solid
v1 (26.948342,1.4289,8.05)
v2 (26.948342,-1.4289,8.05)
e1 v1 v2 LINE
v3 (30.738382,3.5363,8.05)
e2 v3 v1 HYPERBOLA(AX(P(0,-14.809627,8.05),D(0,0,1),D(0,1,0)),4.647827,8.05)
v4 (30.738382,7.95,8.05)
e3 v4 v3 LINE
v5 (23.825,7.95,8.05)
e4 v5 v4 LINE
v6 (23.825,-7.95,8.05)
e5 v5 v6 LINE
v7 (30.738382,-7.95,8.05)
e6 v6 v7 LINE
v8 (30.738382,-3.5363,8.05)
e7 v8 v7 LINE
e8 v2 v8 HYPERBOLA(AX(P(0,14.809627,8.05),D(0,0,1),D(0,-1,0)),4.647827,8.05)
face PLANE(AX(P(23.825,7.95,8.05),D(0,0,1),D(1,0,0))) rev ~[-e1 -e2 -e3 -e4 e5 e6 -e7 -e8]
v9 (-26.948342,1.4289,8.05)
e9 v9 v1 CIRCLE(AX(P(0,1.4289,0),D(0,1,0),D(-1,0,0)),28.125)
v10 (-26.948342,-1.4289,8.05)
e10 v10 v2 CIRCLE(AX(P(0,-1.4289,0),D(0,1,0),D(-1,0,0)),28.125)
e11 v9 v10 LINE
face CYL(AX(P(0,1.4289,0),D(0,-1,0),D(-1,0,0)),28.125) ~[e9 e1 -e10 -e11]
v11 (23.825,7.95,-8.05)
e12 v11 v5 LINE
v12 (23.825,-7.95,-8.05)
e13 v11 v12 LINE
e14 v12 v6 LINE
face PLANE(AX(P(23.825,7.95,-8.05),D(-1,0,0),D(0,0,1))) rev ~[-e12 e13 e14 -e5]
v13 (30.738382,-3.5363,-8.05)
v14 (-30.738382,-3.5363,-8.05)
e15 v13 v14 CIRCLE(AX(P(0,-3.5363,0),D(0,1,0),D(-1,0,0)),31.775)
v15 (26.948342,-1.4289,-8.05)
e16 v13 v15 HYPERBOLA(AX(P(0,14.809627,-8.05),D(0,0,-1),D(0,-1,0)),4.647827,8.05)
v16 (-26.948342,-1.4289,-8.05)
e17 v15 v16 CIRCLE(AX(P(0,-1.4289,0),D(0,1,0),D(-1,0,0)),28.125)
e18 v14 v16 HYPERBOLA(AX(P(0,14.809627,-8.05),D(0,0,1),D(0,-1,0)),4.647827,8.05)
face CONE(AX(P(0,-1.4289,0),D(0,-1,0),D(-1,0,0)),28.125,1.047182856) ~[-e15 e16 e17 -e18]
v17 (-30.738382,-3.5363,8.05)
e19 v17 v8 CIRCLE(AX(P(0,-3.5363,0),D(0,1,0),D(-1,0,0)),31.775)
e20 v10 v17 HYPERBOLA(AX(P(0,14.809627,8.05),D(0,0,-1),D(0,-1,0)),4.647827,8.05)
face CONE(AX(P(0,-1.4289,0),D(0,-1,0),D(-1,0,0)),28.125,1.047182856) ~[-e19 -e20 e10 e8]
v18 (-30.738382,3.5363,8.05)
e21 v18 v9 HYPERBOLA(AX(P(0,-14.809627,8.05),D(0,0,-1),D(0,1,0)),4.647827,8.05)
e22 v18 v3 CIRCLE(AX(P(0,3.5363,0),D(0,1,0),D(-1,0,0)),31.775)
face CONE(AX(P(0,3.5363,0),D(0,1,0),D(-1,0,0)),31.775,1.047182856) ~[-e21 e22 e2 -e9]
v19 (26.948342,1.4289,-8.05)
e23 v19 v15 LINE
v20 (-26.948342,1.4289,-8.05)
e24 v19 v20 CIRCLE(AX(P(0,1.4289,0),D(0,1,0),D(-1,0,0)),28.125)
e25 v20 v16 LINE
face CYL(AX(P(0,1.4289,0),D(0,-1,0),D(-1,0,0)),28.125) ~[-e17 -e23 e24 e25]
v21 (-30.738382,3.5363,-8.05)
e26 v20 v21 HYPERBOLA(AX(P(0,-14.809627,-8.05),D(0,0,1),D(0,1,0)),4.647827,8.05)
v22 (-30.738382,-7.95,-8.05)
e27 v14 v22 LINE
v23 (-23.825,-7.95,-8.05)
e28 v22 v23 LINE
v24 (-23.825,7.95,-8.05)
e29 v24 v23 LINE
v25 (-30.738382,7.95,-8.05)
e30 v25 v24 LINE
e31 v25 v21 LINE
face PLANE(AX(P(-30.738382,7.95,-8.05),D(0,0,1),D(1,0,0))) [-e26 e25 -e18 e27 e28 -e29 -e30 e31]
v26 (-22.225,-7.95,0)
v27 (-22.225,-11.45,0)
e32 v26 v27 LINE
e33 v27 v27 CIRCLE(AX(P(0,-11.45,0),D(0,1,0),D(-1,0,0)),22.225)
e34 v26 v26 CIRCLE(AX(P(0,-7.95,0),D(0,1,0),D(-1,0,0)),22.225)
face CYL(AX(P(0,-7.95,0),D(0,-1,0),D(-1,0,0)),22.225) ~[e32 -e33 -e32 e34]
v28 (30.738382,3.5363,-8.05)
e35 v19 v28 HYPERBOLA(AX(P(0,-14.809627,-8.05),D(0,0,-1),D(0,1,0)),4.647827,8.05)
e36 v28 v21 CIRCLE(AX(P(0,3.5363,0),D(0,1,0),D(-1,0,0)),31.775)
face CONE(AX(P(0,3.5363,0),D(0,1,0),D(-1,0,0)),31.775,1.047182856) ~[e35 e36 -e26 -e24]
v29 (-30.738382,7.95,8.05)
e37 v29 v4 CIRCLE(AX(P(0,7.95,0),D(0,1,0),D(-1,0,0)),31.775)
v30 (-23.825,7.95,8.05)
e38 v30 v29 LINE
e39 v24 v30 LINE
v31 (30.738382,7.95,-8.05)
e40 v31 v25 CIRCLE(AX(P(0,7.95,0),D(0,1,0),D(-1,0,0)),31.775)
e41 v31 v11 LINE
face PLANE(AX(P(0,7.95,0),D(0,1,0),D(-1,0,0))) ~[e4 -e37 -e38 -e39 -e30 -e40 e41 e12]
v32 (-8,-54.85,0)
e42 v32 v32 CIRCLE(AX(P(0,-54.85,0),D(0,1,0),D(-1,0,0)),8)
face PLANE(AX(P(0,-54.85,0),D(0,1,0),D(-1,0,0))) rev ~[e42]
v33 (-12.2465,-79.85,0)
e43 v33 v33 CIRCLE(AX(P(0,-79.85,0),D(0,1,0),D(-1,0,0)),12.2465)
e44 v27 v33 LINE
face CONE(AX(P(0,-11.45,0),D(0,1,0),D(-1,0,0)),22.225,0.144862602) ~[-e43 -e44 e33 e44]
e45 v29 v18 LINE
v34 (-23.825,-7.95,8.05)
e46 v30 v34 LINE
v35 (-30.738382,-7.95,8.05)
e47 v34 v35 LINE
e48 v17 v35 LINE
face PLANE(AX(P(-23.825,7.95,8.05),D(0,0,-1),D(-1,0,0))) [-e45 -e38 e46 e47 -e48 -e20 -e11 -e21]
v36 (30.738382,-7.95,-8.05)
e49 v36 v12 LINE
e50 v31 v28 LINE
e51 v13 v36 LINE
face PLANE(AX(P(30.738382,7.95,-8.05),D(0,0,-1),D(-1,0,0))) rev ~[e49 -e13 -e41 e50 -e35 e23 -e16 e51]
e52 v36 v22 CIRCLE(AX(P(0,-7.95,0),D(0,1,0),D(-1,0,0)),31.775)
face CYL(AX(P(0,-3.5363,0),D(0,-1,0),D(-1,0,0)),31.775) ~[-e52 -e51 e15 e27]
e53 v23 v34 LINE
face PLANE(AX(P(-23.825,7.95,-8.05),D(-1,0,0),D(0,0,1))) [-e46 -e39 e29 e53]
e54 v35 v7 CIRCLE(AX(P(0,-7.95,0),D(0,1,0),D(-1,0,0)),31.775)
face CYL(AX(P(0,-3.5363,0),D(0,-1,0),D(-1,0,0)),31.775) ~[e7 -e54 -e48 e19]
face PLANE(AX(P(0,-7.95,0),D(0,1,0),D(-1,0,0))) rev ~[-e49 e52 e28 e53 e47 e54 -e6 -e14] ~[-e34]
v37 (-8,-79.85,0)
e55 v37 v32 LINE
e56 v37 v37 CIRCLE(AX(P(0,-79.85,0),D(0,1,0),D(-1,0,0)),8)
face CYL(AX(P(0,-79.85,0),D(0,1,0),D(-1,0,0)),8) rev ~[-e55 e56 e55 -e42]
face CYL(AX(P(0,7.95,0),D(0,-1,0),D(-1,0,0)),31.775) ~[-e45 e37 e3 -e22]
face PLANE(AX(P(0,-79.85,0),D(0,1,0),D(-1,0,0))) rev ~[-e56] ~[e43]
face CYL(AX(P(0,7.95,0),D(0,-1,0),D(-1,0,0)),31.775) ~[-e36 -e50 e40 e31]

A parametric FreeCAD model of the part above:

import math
import FreeCAD as App
import Part
import Sketcher

V = App.Vector
Q = App.Units.Quantity


def add_polygon(sketch, points):
    """Adds a closed chain of lines whose ends are joined by coincident constraints."""
    first, n = sketch.GeometryCount, len(points)
    for a, b in zip(points, points[1:] + points[:1]):
        sketch.addGeometry(Part.LineSegment(App.Vector(*a, 0), App.Vector(*b, 0)), False)
    for i in range(n):
        sketch.addConstraint(Sketcher.Constraint("Coincident", first + i, 2, first + (i + 1) % n, 1))

doc = App.newDocument("Part")
body = doc.addObject("PartDesign::Body", "Body")

sketch1 = body.newObject("Sketcher::SketchObject", "Sketch")
sketch1.AttachmentSupport = (doc.getObject("XY_Plane"), [""])
sketch1.MapMode = "FlatFace"
add_polygon(sketch1, [(-8, -54.85), (0, -54.85), (0, 7.95), (-31.775, 7.95), (-31.775, 3.5363), (-28.125, 1.4289), (-28.125, -1.4289), (-31.775, -3.5363), (-31.775, -7.95), (-22.225, -7.95), (-22.225, -11.45), (-12.2465, -79.85), (-8, -79.85)])
sketch1.addConstraint([
    Sketcher.Constraint("Horizontal", 0),
    Sketcher.Constraint("Vertical", 1),
    Sketcher.Constraint("Horizontal", 2),
    Sketcher.Constraint("Vertical", 3),
    Sketcher.Constraint("Vertical", 5),
    Sketcher.Constraint("Vertical", 7),
    Sketcher.Constraint("Horizontal", 8),
    Sketcher.Constraint("Vertical", 9),
    Sketcher.Constraint("Horizontal", 11),
    Sketcher.Constraint("Vertical", 12),
    Sketcher.Constraint("Symmetric", 3, 2, 6, 2, -1),
    Sketcher.Constraint("PointOnObject", 0, 2, -2),
    Sketcher.Constraint("Equal", 3, 7),
    Sketcher.Constraint("Equal", 4, 6),
    Sketcher.Constraint("DistanceY", 12, 1, 12, 2, Q("25 mm")),
    Sketcher.Constraint("DistanceY", 9, 2, 9, 1, Q("3.5 mm")),
    Sketcher.Constraint("DistanceY", 7, 2, 2, 2, Q("15.9 mm")),
    Sketcher.Constraint("DistanceY", 10, 2, 9, 2, Q("68.4 mm")),
    Sketcher.Constraint("DistanceX", 0, 1, 0, 2, Q("8 mm")),
    Sketcher.Constraint("Angle", 4, Q("-30.0008 deg")),
    Sketcher.Constraint("Angle", 10, Q("-81.7 deg")),
    Sketcher.Constraint("DistanceX", 8, 1, 8, 2, Q("9.55 mm")),
    Sketcher.Constraint("DistanceX", 5, 2, 8, 2, Q("5.9 mm")),
    Sketcher.Constraint("DistanceX", 2, 2, 2, 1, Q("31.775 mm")),
    Sketcher.Constraint("DistanceY", 3, 2, 3, 1, Q("4.4137 mm")),
])
revolution = body.newObject("PartDesign::Revolution", "Revolution")
revolution.Profile = sketch1
revolution.ReferenceAxis = (sketch1, ["V_Axis"])
revolution.Angle = 360

sketch2 = body.newObject("Sketcher::SketchObject", "Sketch001")
sketch2.AttachmentSupport = (doc.getObject("XZ_Plane"), [""])
sketch2.MapMode = "FlatFace"
sketch2.AttachmentOffset = App.Placement(V(0, 0, -7.95), App.Rotation())
sketch2.addGeometry([
    Part.LineSegment(V(-23.825, -8.05, 0), V(-30.738382, -8.05, 0)),
    Part.ArcOfCircle(Part.Circle(V(0, 0, 0), V(0, 0, 1), 31.775), math.radians(165.324529), math.radians(194.675471)),
    Part.LineSegment(V(-30.738382, 8.05, 0), V(-23.825, 8.05, 0)),
    Part.LineSegment(V(-23.825, 8.05, 0), V(-23.825, -8.05, 0)),
    Part.ArcOfCircle(Part.Circle(V(0, 0, 0), V(0, 0, 1), 31.775), math.radians(-14.675471), math.radians(14.675471)),
    Part.LineSegment(V(30.738382, -8.05, 0), V(23.825, -8.05, 0)),
    Part.LineSegment(V(23.825, -8.05, 0), V(23.825, 8.05, 0)),
    Part.LineSegment(V(23.825, 8.05, 0), V(30.738382, 8.05, 0)),
], False)
sketch2.addConstraint([
    Sketcher.Constraint("Coincident", 0, 2, 1, 2),
    Sketcher.Constraint("Coincident", 1, 1, 2, 1),
    Sketcher.Constraint("Coincident", 2, 2, 3, 1),
    Sketcher.Constraint("Coincident", 3, 2, 0, 1),
    Sketcher.Constraint("Coincident", 4, 1, 5, 1),
    Sketcher.Constraint("Coincident", 5, 2, 6, 1),
    Sketcher.Constraint("Coincident", 6, 2, 7, 1),
    Sketcher.Constraint("Coincident", 7, 2, 4, 2),
    Sketcher.Constraint("Horizontal", 0),
    Sketcher.Constraint("Horizontal", 2),
    Sketcher.Constraint("Vertical", 3),
    Sketcher.Constraint("Horizontal", 5),
    Sketcher.Constraint("Vertical", 6),
    Sketcher.Constraint("Horizontal", 7),
    Sketcher.Constraint("Coincident", 1, 3, -1, 1),
    Sketcher.Constraint("Coincident", 4, 3, -1, 1),
    Sketcher.Constraint("Equal", 1, 4),
    Sketcher.Constraint("Symmetric", 2, 2, 5, 2, -1, 1),
    Sketcher.Constraint("Horizontal", 3, 2, 4, 1),
    Sketcher.Constraint("Horizontal", 2, 2, 6, 2),
    Sketcher.Constraint("DistanceY", 3, 2, 3, 1, Q("16.1 mm")),
    Sketcher.Constraint("DistanceX", 3, 2, 5, 2, Q("47.65 mm")),
    Sketcher.Constraint("Radius", 1, Q("31.775 mm")),
])
pocket1 = body.newObject("PartDesign::Pocket", "Pocket")
pocket1.Profile = sketch2
pocket1.Type = "ThroughAll"
pocket1.Reversed = True

doc.recompute()
